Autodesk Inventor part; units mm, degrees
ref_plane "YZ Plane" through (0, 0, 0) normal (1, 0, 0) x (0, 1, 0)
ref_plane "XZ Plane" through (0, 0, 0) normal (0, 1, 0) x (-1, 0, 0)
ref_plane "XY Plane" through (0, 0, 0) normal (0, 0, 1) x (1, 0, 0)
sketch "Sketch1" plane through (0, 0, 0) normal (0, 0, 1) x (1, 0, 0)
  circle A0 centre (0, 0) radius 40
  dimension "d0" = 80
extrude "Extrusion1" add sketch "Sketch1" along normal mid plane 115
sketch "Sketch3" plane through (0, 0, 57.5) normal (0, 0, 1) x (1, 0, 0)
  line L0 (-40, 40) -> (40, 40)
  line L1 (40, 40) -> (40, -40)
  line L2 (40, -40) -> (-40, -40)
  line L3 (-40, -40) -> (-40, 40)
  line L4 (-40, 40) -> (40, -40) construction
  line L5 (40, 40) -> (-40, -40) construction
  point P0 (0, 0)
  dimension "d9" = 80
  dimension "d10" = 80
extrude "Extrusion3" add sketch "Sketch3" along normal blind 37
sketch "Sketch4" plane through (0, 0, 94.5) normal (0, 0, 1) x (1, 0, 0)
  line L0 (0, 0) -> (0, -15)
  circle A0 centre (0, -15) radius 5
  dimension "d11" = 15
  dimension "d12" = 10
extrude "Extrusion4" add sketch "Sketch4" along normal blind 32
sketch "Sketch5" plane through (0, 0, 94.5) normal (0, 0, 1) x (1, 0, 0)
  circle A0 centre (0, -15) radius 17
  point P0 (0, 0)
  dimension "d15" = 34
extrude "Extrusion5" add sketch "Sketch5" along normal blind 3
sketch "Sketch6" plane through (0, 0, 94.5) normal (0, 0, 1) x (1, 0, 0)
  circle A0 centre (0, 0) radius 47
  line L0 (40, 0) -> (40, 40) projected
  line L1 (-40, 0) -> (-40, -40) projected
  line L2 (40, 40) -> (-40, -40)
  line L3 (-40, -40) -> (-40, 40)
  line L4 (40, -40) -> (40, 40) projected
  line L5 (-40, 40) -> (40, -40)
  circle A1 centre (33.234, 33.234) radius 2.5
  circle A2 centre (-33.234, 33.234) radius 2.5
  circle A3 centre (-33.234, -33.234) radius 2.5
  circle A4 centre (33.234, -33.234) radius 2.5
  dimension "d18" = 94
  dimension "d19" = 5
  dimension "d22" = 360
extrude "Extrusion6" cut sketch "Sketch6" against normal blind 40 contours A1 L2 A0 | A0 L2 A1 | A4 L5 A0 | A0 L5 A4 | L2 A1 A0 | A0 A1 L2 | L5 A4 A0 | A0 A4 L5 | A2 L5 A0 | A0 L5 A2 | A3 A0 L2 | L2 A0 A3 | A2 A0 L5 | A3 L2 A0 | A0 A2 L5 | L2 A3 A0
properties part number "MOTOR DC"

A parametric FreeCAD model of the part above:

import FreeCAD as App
import Part
import Sketcher
from FreeCAD import Vector
Q = App.Units.Quantity


def add_polygon(sketch, points):
    """Adds a closed chain of lines whose ends are joined by coincident constraints."""
    first, n = sketch.GeometryCount, len(points)
    for a, b in zip(points, points[1:] + points[:1]):
        sketch.addGeometry(Part.LineSegment(App.Vector(*a, 0), App.Vector(*b, 0)), False)
    for i in range(n):
        sketch.addConstraint(Sketcher.Constraint("Coincident", first + i, 2, first + (i + 1) % n, 1))

doc = App.newDocument("Part")
body = doc.addObject("PartDesign::Body", "Body")

# Sketch on XY plane
sketch1 = body.newObject("Sketcher::SketchObject", "Sketch")
sketch1.AttachmentSupport = (doc.getObject("XY_Plane"), [""])
sketch1.MapMode = "FlatFace"
sketch1.addGeometry(Part.Circle(Vector(0, 0, 0), Vector(0, 0, 1), 40), False)
sketch1.addConstraint(Sketcher.Constraint("Coincident", 0, 3, -1, 1))
sketch1.addConstraint(Sketcher.Constraint("Diameter", 0, Q("80 mm")))
pad1 = body.newObject("PartDesign::Pad", "Pad")
pad1.Profile = sketch1
pad1.Length = 115
pad1.Midplane = True

# Sketch on XY plane
sketch2 = body.newObject("Sketcher::SketchObject", "Sketch001")
sketch2.AttachmentSupport = (doc.getObject("XY_Plane"), [""])
sketch2.MapMode = "FlatFace"
sketch2.AttachmentOffset = App.Placement(Vector(0, 0, 57.5), App.Rotation())
add_polygon(sketch2, [(40, 40), (-40, 40), (-40, -40), (40, -40)])  # lines 0-3
sketch2.addConstraint(Sketcher.Constraint("Horizontal", 0))
sketch2.addConstraint(Sketcher.Constraint("Vertical", 1))
sketch2.addConstraint(Sketcher.Constraint("Horizontal", 2))
sketch2.addConstraint(Sketcher.Constraint("Vertical", 3))
sketch2.addConstraint(Sketcher.Constraint("Symmetric", 0, 2, 2, 2, -1, 1))
sketch2.addConstraint(Sketcher.Constraint("Equal", 2, 1))
sketch2.addConstraint(Sketcher.Constraint("DistanceX", 0, 2, 0, 1, Q("80 mm")))
pad2 = body.newObject("PartDesign::Pad", "Pad001")
pad2.Profile = sketch2
pad2.Length = 37

# Sketch on XY plane
sketch3 = body.newObject("Sketcher::SketchObject", "Sketch002")
sketch3.AttachmentSupport = (doc.getObject("XY_Plane"), [""])
sketch3.MapMode = "FlatFace"
sketch3.AttachmentOffset = App.Placement(Vector(0, 0, 94.5), App.Rotation())
sketch3.addGeometry(Part.Circle(Vector(0, -15, 0), Vector(0, 0, 1), 5), False)
sketch3.addConstraint(Sketcher.Constraint("PointOnObject", 0, 3, -2))
sketch3.addConstraint(Sketcher.Constraint("Diameter", 0, Q("10 mm")))
sketch3.addConstraint(Sketcher.Constraint("DistanceY", 0, 3, -1, 1, Q("15 mm")))
pad3 = body.newObject("PartDesign::Pad", "Pad002")
pad3.Profile = sketch3
pad3.Length = 32

# Sketch on XY plane
sketch4 = body.newObject("Sketcher::SketchObject", "Sketch003")
sketch4.AttachmentSupport = (doc.getObject("XY_Plane"), [""])
sketch4.MapMode = "FlatFace"
sketch4.AttachmentOffset = App.Placement(Vector(0, 0, 94.5), App.Rotation())
sketch4.addGeometry(Part.Circle(Vector(0, -15, 0), Vector(0, 0, 1), 17), False)
sketch4.addConstraint(Sketcher.Constraint("PointOnObject", 0, 3, -2))
sketch4.addConstraint(Sketcher.Constraint("Diameter", 0, Q("34 mm")))
sketch4.addConstraint(Sketcher.Constraint("DistanceY", 0, 3, -1, 1, Q("15 mm")))
pad4 = body.newObject("PartDesign::Pad", "Pad003")
pad4.Profile = sketch4
pad4.Length = 3

# Sketch on XY plane
sketch5 = body.newObject("Sketcher::SketchObject", "Sketch004")
sketch5.AttachmentSupport = (doc.getObject("XY_Plane"), [""])
sketch5.MapMode = "FlatFace"
sketch5.AttachmentOffset = App.Placement(Vector(0, 0, 94.5), App.Rotation())
sketch5.addGeometry(Part.Circle(Vector(33.234, 33.234, 0), Vector(0, 0, 1), 2.5), False)
sketch5.addGeometry(Part.Circle(Vector(33.234, -33.234, 0), Vector(0, 0, 1), 2.5), False)
sketch5.addGeometry(Part.Circle(Vector(-33.234, 33.234, 0), Vector(0, 0, 1), 2.5), False)
sketch5.addGeometry(Part.Circle(Vector(-33.234, -33.234, 0), Vector(0, 0, 1), 2.5), False)
sketch5.addConstraint(Sketcher.Constraint("Equal", 0, 1))
sketch5.addConstraint(Sketcher.Constraint("Equal", 1, 2))
sketch5.addConstraint(Sketcher.Constraint("Equal", 2, 3))
sketch5.addConstraint(Sketcher.Constraint("Symmetric", 1, 3, 2, 3, -1, 1))
sketch5.addConstraint(Sketcher.Constraint("Symmetric", 0, 3, 3, 3, -1, 1))
sketch5.addConstraint(Sketcher.Constraint("Symmetric", 0, 3, 2, 3, -2))
sketch5.addConstraint(Sketcher.Constraint("Diameter", 0, Q("5 mm")))
sketch5.addConstraint(Sketcher.Constraint("DistanceX", -1, 1, 0, 3, Q("33.234 mm")))
sketch5.addConstraint(Sketcher.Constraint("DistanceY", -1, 1, 0, 3, Q("33.234 mm")))
pocket1 = body.newObject("PartDesign::Pocket", "Pocket")
pocket1.Profile = sketch5
pocket1.Length = 40

doc.recompute()
